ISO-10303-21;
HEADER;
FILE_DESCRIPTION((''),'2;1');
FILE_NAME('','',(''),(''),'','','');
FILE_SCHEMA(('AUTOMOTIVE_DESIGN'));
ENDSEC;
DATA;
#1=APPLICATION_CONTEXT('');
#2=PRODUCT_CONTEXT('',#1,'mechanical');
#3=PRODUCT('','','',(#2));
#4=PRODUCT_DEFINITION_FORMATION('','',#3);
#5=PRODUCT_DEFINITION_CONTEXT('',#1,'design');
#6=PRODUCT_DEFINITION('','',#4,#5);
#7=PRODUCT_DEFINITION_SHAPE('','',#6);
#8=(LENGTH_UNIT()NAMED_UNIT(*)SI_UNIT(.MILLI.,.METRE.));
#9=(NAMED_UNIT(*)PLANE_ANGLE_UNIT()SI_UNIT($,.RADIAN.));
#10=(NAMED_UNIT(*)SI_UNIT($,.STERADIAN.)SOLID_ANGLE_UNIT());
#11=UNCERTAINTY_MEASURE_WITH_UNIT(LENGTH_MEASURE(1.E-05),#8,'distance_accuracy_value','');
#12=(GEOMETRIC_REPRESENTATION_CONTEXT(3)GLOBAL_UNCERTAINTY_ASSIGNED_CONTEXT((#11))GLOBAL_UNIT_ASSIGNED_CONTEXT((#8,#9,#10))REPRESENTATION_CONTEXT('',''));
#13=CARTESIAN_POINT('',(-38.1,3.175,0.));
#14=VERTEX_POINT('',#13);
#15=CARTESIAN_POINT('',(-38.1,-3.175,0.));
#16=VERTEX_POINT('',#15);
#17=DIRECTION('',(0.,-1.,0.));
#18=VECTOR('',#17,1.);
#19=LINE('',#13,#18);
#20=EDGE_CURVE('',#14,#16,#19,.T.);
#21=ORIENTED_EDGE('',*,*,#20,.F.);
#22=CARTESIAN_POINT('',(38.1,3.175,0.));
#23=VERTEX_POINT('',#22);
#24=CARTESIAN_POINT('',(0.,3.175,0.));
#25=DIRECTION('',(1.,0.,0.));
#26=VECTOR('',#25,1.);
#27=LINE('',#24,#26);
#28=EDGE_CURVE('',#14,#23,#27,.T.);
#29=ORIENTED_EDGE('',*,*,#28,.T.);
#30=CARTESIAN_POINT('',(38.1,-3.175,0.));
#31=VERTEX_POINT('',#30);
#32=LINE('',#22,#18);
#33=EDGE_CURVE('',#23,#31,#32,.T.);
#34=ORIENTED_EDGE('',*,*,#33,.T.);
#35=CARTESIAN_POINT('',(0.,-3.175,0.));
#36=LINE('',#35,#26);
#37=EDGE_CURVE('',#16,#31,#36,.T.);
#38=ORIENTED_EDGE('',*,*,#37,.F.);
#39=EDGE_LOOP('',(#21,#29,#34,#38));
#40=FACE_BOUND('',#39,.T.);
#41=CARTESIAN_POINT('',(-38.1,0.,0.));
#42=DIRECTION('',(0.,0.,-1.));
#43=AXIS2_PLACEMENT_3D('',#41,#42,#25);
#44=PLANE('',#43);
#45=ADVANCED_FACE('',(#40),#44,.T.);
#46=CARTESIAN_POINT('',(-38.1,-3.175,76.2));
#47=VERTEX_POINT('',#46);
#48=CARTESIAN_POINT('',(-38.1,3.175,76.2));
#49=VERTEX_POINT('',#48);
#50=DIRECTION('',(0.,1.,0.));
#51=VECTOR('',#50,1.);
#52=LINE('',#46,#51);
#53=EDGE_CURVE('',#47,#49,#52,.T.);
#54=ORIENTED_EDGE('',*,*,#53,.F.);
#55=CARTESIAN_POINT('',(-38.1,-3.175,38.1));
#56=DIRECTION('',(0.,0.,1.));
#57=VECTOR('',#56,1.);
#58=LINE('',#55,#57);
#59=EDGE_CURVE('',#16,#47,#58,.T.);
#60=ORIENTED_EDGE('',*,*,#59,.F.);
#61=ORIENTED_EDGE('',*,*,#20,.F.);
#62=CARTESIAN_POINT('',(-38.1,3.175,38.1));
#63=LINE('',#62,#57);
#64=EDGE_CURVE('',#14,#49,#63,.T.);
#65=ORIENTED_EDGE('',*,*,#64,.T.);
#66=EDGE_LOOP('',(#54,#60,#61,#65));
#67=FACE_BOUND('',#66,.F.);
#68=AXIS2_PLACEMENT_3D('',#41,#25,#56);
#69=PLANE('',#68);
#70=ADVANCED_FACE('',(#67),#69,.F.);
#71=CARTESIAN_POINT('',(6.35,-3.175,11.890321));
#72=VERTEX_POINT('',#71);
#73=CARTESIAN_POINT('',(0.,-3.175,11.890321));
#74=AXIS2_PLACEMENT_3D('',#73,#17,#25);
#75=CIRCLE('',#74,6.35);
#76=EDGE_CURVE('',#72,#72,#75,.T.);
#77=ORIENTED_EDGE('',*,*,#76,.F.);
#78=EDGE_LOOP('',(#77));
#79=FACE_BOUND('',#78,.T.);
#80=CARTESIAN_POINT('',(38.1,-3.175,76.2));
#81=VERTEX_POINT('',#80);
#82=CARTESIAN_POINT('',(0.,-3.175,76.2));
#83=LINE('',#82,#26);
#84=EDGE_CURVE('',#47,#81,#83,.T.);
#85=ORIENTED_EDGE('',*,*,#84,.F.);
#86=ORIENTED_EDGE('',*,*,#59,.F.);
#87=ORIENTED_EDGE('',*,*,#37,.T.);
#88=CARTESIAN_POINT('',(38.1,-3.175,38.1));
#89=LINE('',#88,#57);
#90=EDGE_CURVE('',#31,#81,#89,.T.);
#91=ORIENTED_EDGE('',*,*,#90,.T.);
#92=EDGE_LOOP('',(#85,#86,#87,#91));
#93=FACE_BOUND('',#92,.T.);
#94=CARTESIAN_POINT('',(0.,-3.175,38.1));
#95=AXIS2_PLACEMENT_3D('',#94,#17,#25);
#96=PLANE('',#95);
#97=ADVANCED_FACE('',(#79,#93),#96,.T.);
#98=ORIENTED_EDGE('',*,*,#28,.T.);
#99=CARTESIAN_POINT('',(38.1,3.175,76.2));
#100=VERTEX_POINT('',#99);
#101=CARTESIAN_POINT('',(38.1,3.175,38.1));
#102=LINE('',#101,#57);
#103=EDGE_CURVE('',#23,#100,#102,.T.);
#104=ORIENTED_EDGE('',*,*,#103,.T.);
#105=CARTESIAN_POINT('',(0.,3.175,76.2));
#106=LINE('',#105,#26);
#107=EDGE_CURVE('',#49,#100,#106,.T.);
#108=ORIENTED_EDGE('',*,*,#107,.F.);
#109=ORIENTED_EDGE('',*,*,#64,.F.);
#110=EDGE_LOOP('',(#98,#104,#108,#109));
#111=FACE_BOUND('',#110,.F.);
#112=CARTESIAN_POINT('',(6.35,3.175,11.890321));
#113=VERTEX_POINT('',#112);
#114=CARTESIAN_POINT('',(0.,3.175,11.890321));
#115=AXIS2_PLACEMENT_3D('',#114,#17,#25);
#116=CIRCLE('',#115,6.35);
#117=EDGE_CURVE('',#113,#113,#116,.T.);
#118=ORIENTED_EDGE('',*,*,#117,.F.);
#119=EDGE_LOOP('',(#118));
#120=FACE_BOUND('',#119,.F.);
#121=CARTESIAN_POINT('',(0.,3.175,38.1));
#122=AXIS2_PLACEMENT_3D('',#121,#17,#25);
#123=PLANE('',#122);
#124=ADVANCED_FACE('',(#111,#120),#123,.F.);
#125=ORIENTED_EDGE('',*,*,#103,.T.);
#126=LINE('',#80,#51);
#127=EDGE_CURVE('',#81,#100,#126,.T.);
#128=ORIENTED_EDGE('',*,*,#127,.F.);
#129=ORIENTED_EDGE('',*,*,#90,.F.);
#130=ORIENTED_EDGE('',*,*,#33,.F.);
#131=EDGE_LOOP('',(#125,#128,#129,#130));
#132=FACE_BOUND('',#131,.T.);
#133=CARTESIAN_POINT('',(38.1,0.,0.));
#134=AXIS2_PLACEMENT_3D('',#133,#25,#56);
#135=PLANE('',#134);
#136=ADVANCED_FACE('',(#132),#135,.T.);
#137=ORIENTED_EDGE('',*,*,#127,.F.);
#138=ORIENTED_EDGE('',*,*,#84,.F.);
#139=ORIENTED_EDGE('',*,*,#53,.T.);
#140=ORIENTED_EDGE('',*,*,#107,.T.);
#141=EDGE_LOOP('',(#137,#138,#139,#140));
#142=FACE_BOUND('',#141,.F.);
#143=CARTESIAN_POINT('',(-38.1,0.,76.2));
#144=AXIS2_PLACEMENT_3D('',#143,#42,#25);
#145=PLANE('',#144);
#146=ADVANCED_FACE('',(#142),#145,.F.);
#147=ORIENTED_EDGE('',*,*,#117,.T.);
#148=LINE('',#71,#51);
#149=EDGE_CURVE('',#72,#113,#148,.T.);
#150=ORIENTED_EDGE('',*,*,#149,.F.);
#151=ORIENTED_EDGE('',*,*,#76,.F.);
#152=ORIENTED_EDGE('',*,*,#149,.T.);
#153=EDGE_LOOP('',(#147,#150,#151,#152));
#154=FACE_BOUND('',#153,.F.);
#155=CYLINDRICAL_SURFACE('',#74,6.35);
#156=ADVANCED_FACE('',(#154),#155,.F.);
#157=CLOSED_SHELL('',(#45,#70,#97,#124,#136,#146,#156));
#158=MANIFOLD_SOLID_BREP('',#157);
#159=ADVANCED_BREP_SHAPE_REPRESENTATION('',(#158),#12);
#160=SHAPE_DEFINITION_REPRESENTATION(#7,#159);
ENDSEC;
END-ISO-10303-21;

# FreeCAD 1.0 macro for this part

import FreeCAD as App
import Part
import Sketcher
from FreeCAD import Vector
Q = App.Units.Quantity


def add_polygon(sketch, points):
    """Adds a closed chain of lines whose ends are joined by coincident constraints."""
    first, n = sketch.GeometryCount, len(points)
    for a, b in zip(points, points[1:] + points[:1]):
        sketch.addGeometry(Part.LineSegment(App.Vector(*a, 0), App.Vector(*b, 0)), False)
    for i in range(n):
        sketch.addConstraint(Sketcher.Constraint("Coincident", first + i, 2, first + (i + 1) % n, 1))

doc = App.newDocument("Part")
body = doc.addObject("PartDesign::Body", "Body")

sketch1 = body.newObject("Sketcher::SketchObject", "Sketch")
sketch1.AttachmentSupport = (doc.getObject("XZ_Plane"), [""])
sketch1.MapMode = "FlatFace"
add_polygon(sketch1, [(-38.1, 76.2), (-38.1, 0), (38.1, 0), (38.1, 76.2)])
sketch1.addConstraint(Sketcher.Constraint("Vertical", 0))
sketch1.addConstraint(Sketcher.Constraint("Horizontal", 1))
sketch1.addConstraint(Sketcher.Constraint("Vertical", 2))
sketch1.addConstraint(Sketcher.Constraint("Horizontal", 3))
sketch1.addConstraint(Sketcher.Constraint("Symmetric", 0, 2, 1, 2, -1, 1))
sketch1.addConstraint(Sketcher.Constraint("Equal", 3, 0))
sketch1.addConstraint(Sketcher.Constraint("DistanceX", 1, 1, 1, 2, Q("3 in")))
pad1 = body.newObject("PartDesign::Pad", "Pad")
pad1.Profile = sketch1
pad1.Length = Q("0.25 in")
pad1.Midplane = True

sketch2 = body.newObject("Sketcher::SketchObject", "Sketch001")
sketch2.AttachmentSupport = (doc.getObject("XZ_Plane"), [""])
sketch2.MapMode = "FlatFace"
sketch2.AttachmentOffset = App.Placement(Vector(0, 0, 0.125 * 25.4), App.Rotation())
sketch2.addGeometry(Part.Circle(Vector(0, 11.890321, 0), Vector(0, 0, 1), 6.35), False)
sketch2.addConstraint(Sketcher.Constraint("PointOnObject", 0, 3, -2))
sketch2.addConstraint(Sketcher.Constraint("Diameter", 0, Q("0.5 in")))
sketch2.addConstraint(Sketcher.Constraint("DistanceY", -1, 1, 0, 3, Q("11.890321 mm")))
pocket1 = body.newObject("PartDesign::Pocket", "Pocket")
pocket1.Profile = sketch2
pocket1.Length = Q("0.25 in")

doc.recompute()
